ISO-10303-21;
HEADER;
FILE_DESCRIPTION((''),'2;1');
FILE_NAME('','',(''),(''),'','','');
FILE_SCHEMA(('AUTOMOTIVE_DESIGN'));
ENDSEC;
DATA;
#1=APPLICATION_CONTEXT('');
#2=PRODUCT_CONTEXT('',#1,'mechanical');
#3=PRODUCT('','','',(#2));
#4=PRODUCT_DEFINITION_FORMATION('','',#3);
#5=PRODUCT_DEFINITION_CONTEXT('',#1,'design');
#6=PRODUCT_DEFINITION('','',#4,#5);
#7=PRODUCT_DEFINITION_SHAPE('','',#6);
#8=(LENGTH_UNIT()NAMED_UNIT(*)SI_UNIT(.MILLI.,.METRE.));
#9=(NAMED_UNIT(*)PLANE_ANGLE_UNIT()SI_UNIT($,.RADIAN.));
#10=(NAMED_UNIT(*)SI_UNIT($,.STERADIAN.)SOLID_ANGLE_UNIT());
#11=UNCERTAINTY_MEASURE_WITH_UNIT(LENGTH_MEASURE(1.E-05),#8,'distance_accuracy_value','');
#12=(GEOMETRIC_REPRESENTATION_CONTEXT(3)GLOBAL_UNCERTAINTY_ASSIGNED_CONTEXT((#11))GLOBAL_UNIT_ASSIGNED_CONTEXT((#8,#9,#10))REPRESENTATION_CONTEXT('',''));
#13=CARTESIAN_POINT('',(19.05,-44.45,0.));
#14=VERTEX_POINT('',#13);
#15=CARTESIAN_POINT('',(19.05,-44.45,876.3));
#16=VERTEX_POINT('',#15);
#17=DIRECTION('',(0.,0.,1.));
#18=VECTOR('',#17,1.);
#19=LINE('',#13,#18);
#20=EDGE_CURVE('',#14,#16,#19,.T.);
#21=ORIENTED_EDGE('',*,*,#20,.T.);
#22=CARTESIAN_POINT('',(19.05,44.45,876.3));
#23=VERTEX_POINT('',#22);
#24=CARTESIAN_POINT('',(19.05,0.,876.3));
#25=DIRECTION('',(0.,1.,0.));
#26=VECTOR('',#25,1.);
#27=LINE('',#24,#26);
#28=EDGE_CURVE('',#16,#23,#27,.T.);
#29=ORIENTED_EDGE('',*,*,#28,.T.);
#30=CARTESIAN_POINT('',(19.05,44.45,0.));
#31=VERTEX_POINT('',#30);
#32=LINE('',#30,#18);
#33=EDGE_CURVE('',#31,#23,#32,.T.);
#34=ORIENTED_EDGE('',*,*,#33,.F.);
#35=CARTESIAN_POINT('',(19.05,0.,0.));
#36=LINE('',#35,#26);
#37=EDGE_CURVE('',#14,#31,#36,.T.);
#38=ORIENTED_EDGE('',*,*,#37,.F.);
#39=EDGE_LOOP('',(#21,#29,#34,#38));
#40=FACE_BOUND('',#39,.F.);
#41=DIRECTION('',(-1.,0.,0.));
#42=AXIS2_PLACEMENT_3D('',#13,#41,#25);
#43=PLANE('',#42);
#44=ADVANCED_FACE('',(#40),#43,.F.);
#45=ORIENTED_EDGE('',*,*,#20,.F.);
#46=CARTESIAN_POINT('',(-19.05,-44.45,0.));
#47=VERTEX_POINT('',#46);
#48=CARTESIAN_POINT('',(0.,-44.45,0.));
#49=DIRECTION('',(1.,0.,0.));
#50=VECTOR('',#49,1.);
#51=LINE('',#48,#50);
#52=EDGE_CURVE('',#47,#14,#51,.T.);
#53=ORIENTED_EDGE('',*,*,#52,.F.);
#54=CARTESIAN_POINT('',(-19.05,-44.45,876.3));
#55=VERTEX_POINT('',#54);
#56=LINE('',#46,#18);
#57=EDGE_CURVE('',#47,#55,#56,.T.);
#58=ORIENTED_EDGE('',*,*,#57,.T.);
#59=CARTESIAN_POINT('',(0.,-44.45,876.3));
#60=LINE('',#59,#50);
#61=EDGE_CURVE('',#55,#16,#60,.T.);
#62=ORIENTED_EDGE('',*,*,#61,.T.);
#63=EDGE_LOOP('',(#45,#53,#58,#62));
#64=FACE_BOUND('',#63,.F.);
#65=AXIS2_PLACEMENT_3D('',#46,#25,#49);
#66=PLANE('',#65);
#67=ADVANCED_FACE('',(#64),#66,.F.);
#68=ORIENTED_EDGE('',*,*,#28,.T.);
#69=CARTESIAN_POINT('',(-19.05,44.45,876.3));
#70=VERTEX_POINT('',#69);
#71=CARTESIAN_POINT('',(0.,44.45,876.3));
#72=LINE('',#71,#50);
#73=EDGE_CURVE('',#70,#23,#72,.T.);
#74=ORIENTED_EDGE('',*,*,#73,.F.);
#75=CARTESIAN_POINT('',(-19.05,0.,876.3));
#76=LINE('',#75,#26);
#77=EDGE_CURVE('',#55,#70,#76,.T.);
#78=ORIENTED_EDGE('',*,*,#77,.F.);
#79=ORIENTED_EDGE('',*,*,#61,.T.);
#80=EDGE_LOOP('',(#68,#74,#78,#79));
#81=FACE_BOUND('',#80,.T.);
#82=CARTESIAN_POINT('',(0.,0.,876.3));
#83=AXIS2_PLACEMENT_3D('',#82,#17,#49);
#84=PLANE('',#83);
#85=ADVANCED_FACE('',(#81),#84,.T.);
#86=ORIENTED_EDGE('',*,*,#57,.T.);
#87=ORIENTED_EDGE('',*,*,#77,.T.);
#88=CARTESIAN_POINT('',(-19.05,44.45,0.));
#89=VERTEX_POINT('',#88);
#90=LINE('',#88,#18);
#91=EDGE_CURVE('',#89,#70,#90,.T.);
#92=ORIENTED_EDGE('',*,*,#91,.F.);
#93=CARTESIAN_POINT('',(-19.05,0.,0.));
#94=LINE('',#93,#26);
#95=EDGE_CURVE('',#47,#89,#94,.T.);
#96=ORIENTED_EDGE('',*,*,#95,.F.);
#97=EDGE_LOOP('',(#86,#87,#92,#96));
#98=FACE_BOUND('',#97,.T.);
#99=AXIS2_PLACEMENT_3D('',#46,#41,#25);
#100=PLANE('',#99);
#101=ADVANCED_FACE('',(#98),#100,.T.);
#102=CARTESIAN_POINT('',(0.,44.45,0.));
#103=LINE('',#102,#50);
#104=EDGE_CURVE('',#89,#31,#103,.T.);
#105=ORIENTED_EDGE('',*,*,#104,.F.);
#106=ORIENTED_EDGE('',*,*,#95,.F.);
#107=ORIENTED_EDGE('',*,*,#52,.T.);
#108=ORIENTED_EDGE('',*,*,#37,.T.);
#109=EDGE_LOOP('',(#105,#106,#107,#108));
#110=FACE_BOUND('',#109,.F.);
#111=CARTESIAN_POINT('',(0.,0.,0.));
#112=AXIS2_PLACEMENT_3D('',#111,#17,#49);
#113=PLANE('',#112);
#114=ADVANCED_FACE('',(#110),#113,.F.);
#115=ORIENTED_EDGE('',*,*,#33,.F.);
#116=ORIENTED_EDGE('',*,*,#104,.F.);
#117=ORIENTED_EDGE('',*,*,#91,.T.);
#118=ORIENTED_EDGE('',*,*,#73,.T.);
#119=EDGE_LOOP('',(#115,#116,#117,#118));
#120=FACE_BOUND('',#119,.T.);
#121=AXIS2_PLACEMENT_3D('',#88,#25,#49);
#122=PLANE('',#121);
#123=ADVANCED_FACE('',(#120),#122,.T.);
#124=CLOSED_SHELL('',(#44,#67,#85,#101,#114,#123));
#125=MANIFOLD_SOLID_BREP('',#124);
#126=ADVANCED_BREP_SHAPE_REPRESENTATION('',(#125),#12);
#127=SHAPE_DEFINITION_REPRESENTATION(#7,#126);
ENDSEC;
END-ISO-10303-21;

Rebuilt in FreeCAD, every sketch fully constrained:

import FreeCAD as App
import Part
import Sketcher
from FreeCAD import Vector
Q = App.Units.Quantity


def add_polygon(sketch, points):
    """Adds a closed chain of lines whose ends are joined by coincident constraints."""
    first, n = sketch.GeometryCount, len(points)
    for a, b in zip(points, points[1:] + points[:1]):
        sketch.addGeometry(Part.LineSegment(App.Vector(*a, 0), App.Vector(*b, 0)), False)
    for i in range(n):
        sketch.addConstraint(Sketcher.Constraint("Coincident", first + i, 2, first + (i + 1) % n, 1))

doc = App.newDocument("Part")
body = doc.addObject("PartDesign::Body", "Body")

# Sketch on XY plane
sketch1 = body.newObject("Sketcher::SketchObject", "Sketch")
sketch1.AttachmentSupport = (doc.getObject("XY_Plane"), [""])
sketch1.MapMode = "FlatFace"
add_polygon(sketch1, [(-19, 44), (-19, -44), (19, -44), (19, 44)])  # lines 0-3
sketch1.addConstraint(Sketcher.Constraint("Vertical", 0))
sketch1.addConstraint(Sketcher.Constraint("Horizontal", 1))
sketch1.addConstraint(Sketcher.Constraint("Vertical", 2))
sketch1.addConstraint(Sketcher.Constraint("Horizontal", 3))
sketch1.addConstraint(Sketcher.Constraint("Symmetric", 0, 2, 2, 2, -1, 1))
sketch1.addConstraint(Sketcher.Constraint("DistanceX", 1, 1, 1, 2, Q("1.5 in")))
sketch1.addConstraint(Sketcher.Constraint("DistanceY", 0, 2, 0, 1, Q("3.5 in")))
pad1 = body.newObject("PartDesign::Pad", "Pad")
pad1.Profile = sketch1
pad1.Length = Q("34.5 in")

doc.recompute()
